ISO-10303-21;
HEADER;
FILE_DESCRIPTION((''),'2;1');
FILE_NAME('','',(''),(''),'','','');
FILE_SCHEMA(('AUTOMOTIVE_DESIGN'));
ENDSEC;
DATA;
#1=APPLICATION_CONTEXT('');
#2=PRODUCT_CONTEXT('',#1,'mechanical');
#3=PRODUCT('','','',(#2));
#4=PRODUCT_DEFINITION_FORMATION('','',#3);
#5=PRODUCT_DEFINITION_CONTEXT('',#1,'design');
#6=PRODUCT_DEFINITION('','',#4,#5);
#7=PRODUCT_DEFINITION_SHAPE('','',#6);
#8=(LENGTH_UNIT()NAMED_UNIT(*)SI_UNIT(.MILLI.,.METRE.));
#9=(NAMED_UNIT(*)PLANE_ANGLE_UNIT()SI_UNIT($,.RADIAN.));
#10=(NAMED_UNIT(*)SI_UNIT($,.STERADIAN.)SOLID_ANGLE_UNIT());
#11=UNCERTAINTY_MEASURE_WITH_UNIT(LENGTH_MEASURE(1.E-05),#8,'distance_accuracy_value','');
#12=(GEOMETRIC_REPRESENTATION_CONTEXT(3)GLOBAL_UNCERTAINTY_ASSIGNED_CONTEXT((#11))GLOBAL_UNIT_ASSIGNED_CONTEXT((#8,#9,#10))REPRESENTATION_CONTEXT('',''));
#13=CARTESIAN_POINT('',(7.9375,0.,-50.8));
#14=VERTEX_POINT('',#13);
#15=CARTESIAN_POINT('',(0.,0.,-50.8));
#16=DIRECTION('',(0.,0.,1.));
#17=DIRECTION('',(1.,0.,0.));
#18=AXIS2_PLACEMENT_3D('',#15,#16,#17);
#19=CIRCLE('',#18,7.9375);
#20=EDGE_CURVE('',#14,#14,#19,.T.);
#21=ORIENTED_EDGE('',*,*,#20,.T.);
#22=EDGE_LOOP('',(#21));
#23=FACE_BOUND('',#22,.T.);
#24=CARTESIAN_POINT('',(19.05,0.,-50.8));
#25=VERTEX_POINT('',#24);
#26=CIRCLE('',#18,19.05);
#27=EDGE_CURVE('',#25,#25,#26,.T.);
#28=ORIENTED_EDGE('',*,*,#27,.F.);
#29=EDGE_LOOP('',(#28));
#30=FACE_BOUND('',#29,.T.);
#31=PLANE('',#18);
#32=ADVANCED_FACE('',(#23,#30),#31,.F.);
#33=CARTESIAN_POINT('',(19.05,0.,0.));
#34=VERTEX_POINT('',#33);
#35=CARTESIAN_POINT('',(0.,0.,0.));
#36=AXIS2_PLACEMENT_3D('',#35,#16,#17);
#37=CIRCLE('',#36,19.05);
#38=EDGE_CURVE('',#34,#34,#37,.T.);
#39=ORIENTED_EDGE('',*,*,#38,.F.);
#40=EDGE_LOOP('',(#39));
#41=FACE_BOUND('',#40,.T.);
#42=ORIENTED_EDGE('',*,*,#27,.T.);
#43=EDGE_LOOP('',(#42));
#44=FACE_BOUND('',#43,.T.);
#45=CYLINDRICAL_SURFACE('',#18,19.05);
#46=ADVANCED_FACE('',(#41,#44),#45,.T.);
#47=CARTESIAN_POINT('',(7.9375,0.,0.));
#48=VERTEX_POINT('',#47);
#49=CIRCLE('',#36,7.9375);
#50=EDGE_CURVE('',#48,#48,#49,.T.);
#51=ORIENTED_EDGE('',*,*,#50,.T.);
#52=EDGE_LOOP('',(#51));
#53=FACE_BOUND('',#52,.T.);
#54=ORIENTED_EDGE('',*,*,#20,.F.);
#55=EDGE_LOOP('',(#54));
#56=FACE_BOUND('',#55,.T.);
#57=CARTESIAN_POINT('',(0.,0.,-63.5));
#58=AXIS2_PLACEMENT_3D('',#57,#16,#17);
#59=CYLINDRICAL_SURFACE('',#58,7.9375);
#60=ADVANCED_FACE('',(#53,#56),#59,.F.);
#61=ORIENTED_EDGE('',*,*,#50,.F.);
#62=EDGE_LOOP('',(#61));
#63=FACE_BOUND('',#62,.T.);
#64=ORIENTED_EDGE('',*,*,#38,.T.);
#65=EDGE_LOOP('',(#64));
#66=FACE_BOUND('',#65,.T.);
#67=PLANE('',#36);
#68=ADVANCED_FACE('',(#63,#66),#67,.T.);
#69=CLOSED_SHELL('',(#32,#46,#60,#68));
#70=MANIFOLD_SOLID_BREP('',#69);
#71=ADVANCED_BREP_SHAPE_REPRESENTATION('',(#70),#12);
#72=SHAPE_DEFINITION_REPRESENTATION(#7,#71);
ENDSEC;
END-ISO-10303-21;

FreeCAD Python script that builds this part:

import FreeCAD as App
import Part
import Sketcher
Q = App.Units.Quantity

doc = App.newDocument("Part")
params = doc.addObject("Spreadsheet::Sheet", "Params")
for row, (alias, value) in enumerate([
    ("sketch1_diameter", "1.5 in"),
    ("pad1_length", "2 in"),
    ("sketch2_diameter", "0.625 in"),
    ("pocket1_length", "2.5 in"),
], start=1):
    params.set(f"A{row}", alias)
    params.set(f"B{row}", "=" + value)
    params.setAlias(f"B{row}", alias)

body = doc.addObject("PartDesign::Body", "Body")

sketch1 = body.newObject("Sketcher::SketchObject", "Sketch")
sketch1.AttachmentSupport = (doc.getObject("XY_Plane"), [""])
sketch1.MapMode = "FlatFace"
sketch1.addGeometry(Part.Circle(App.Vector(0, 0, 0), App.Vector(0, 0, 1), 19), False)
sketch1.addConstraint(Sketcher.Constraint("Coincident", 0, 3, -1, 1))
sketch1.addConstraint(Sketcher.Constraint("Diameter", 0, Q("1.5 in")))
sketch1.setExpression("Constraints[1]", "Params.sketch1_diameter")
pad1 = body.newObject("PartDesign::Pad", "Pad")
pad1.Profile = sketch1
pad1.setExpression("Length", "Params.pad1_length")
pad1.Reversed = True

sketch2 = body.newObject("Sketcher::SketchObject", "Sketch001")
sketch2.AttachmentSupport = (doc.getObject("XY_Plane"), [""])
sketch2.MapMode = "FlatFace"
sketch2.addGeometry(Part.Circle(App.Vector(0, 0, 0), App.Vector(0, 0, 1), 8), False)
sketch2.addConstraint(Sketcher.Constraint("Coincident", 0, 3, -1, 1))
sketch2.addConstraint(Sketcher.Constraint("Diameter", 0, Q("0.625 in")))
sketch2.setExpression("Constraints[1]", "Params.sketch2_diameter")
pocket1 = body.newObject("PartDesign::Pocket", "Pocket")
pocket1.Profile = sketch2
pocket1.setExpression("Length", "Params.pocket1_length")

doc.recompute()
